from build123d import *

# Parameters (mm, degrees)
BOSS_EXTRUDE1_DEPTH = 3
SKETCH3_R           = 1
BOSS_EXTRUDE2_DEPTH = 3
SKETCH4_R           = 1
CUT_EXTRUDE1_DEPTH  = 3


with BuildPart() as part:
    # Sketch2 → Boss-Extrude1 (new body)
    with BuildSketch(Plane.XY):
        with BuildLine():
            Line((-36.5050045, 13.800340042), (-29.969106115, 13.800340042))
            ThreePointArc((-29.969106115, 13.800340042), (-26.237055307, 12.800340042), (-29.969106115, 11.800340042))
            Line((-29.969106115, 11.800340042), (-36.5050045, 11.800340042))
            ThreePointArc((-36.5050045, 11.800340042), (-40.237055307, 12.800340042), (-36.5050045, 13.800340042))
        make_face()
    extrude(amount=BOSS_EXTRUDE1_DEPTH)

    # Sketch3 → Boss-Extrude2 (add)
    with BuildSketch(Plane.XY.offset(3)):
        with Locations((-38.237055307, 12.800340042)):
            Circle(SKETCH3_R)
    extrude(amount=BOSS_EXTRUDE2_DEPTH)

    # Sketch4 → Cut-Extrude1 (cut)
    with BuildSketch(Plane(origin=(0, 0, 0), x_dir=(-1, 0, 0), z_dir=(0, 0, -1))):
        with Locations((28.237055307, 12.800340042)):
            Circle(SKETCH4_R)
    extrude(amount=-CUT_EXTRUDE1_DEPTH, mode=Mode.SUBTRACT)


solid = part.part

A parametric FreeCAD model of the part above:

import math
import FreeCAD as App
import Part
import Sketcher
from FreeCAD import Vector

doc = App.newDocument("Part")
params = doc.addObject("Spreadsheet::Sheet", "Params")
for row, (alias, value) in enumerate([
    ("sketch1_radius", "2 mm"),
    ("pad1_length", "3 mm"),
    ("sketch2_diameter", "2 mm"),
    ("pad2_length", "3 mm"),
    ("sketch3_diameter", "2 mm"),
    ("pocket1_length", "3 mm"),
], start=1):
    params.set(f"A{row}", alias)
    params.set(f"B{row}", "=" + value)
    params.setAlias(f"B{row}", alias)

body = doc.addObject("PartDesign::Body", "Body")

sketch1 = body.newObject("Sketcher::SketchObject", "Sketch")
sketch1.AttachmentSupport = (doc.getObject("XY_Plane"), [""])
sketch1.MapMode = "FlatFace"
sketch1.addGeometry(Part.LineSegment(Vector(-30, 13.8, 0), Vector(-36.5, 13.8, 0)), False)
sketch1.addGeometry(Part.ArcOfCircle(Part.Circle(Vector(-38.2, 12.8, 0), Vector(0, 0, 1), 2), math.radians(30), math.radians(330)), False)
sketch1.addGeometry(Part.LineSegment(Vector(-36.5, 11.8, 0), Vector(-30, 11.8, 0)), False)
sketch1.addGeometry(Part.ArcOfCircle(Part.Circle(Vector(-28.2, 12.8, 0), Vector(0, 0, 1), 2), math.radians(-150), math.radians(150)), False)
sketch1.addConstraint(Sketcher.Constraint("Coincident", 0, 2, 1, 1))
sketch1.addConstraint(Sketcher.Constraint("Coincident", 1, 2, 2, 1))
sketch1.addConstraint(Sketcher.Constraint("Coincident", 2, 2, 3, 1))
sketch1.addConstraint(Sketcher.Constraint("Coincident", 3, 2, 0, 1))
sketch1.addConstraint(Sketcher.Constraint("Horizontal", 0))
sketch1.addConstraint(Sketcher.Constraint("Horizontal", 2))
sketch1.addConstraint(Sketcher.Constraint("Equal", 1, 3))
sketch1.addConstraint(Sketcher.Constraint("Horizontal", 1, 3, 3, 3))
sketch1.addConstraint(Sketcher.Constraint("Vertical", 0, 2, 1, 2))
sketch1.addConstraint(Sketcher.Constraint("Radius", 1, 2.0))
sketch1.addConstraint(Sketcher.Constraint("DistanceX", 1, 3, 3, 3, 10.0))
sketch1.addConstraint(Sketcher.Constraint("DistanceY", 1, 3, 0, 2, 1.0))
sketch1.addConstraint(Sketcher.Constraint("DistanceY", -1, 1, 1, 3, 12.80034))
sketch1.addConstraint(Sketcher.Constraint("DistanceX", 1, 3, -1, 1, 38.237055))
sketch1.setExpression("Constraints[9]", "Params.sketch1_radius")
pad1 = body.newObject("PartDesign::Pad", "Pad")
pad1.Profile = sketch1
pad1.setExpression("Length", "Params.pad1_length")

sketch2 = body.newObject("Sketcher::SketchObject", "Sketch001")
sketch2.AttachmentSupport = (doc.getObject("XY_Plane"), [""])
sketch2.MapMode = "FlatFace"
sketch2.AttachmentOffset = App.Placement(Vector(0, 0, 3), App.Rotation())
sketch2.addGeometry(Part.Circle(Vector(-38.2, 12.8, 0), Vector(0, 0, 1), 1), False)
sketch2.addConstraint(Sketcher.Constraint("Diameter", 0, 2.0))
sketch2.addConstraint(Sketcher.Constraint("DistanceY", -1, 1, 0, 3, 12.80034))
sketch2.addConstraint(Sketcher.Constraint("DistanceX", 0, 3, -1, 1, 38.237055))
sketch2.setExpression("Constraints[0]", "Params.sketch2_diameter")
pad2 = body.newObject("PartDesign::Pad", "Pad001")
pad2.Profile = sketch2
pad2.setExpression("Length", "Params.pad2_length")

sketch3 = body.newObject("Sketcher::SketchObject", "Sketch002")
sketch3.AttachmentSupport = (doc.getObject("XY_Plane"), [""])
sketch3.MapMode = "FlatFace"
sketch3.addGeometry(Part.Circle(Vector(-28.2, 12.8, 0), Vector(0, 0, 1), 1), False)
sketch3.addConstraint(Sketcher.Constraint("Diameter", 0, 2.0))
sketch3.addConstraint(Sketcher.Constraint("DistanceY", -1, 1, 0, 3, 12.80034))
sketch3.addConstraint(Sketcher.Constraint("DistanceX", 0, 3, -1, 1, 28.237055))
sketch3.setExpression("Constraints[0]", "Params.sketch3_diameter")
pocket1 = body.newObject("PartDesign::Pocket", "Pocket")
pocket1.Profile = sketch3
pocket1.setExpression("Length", "Params.pocket1_length")
pocket1.Reversed = True

doc.recompute()
